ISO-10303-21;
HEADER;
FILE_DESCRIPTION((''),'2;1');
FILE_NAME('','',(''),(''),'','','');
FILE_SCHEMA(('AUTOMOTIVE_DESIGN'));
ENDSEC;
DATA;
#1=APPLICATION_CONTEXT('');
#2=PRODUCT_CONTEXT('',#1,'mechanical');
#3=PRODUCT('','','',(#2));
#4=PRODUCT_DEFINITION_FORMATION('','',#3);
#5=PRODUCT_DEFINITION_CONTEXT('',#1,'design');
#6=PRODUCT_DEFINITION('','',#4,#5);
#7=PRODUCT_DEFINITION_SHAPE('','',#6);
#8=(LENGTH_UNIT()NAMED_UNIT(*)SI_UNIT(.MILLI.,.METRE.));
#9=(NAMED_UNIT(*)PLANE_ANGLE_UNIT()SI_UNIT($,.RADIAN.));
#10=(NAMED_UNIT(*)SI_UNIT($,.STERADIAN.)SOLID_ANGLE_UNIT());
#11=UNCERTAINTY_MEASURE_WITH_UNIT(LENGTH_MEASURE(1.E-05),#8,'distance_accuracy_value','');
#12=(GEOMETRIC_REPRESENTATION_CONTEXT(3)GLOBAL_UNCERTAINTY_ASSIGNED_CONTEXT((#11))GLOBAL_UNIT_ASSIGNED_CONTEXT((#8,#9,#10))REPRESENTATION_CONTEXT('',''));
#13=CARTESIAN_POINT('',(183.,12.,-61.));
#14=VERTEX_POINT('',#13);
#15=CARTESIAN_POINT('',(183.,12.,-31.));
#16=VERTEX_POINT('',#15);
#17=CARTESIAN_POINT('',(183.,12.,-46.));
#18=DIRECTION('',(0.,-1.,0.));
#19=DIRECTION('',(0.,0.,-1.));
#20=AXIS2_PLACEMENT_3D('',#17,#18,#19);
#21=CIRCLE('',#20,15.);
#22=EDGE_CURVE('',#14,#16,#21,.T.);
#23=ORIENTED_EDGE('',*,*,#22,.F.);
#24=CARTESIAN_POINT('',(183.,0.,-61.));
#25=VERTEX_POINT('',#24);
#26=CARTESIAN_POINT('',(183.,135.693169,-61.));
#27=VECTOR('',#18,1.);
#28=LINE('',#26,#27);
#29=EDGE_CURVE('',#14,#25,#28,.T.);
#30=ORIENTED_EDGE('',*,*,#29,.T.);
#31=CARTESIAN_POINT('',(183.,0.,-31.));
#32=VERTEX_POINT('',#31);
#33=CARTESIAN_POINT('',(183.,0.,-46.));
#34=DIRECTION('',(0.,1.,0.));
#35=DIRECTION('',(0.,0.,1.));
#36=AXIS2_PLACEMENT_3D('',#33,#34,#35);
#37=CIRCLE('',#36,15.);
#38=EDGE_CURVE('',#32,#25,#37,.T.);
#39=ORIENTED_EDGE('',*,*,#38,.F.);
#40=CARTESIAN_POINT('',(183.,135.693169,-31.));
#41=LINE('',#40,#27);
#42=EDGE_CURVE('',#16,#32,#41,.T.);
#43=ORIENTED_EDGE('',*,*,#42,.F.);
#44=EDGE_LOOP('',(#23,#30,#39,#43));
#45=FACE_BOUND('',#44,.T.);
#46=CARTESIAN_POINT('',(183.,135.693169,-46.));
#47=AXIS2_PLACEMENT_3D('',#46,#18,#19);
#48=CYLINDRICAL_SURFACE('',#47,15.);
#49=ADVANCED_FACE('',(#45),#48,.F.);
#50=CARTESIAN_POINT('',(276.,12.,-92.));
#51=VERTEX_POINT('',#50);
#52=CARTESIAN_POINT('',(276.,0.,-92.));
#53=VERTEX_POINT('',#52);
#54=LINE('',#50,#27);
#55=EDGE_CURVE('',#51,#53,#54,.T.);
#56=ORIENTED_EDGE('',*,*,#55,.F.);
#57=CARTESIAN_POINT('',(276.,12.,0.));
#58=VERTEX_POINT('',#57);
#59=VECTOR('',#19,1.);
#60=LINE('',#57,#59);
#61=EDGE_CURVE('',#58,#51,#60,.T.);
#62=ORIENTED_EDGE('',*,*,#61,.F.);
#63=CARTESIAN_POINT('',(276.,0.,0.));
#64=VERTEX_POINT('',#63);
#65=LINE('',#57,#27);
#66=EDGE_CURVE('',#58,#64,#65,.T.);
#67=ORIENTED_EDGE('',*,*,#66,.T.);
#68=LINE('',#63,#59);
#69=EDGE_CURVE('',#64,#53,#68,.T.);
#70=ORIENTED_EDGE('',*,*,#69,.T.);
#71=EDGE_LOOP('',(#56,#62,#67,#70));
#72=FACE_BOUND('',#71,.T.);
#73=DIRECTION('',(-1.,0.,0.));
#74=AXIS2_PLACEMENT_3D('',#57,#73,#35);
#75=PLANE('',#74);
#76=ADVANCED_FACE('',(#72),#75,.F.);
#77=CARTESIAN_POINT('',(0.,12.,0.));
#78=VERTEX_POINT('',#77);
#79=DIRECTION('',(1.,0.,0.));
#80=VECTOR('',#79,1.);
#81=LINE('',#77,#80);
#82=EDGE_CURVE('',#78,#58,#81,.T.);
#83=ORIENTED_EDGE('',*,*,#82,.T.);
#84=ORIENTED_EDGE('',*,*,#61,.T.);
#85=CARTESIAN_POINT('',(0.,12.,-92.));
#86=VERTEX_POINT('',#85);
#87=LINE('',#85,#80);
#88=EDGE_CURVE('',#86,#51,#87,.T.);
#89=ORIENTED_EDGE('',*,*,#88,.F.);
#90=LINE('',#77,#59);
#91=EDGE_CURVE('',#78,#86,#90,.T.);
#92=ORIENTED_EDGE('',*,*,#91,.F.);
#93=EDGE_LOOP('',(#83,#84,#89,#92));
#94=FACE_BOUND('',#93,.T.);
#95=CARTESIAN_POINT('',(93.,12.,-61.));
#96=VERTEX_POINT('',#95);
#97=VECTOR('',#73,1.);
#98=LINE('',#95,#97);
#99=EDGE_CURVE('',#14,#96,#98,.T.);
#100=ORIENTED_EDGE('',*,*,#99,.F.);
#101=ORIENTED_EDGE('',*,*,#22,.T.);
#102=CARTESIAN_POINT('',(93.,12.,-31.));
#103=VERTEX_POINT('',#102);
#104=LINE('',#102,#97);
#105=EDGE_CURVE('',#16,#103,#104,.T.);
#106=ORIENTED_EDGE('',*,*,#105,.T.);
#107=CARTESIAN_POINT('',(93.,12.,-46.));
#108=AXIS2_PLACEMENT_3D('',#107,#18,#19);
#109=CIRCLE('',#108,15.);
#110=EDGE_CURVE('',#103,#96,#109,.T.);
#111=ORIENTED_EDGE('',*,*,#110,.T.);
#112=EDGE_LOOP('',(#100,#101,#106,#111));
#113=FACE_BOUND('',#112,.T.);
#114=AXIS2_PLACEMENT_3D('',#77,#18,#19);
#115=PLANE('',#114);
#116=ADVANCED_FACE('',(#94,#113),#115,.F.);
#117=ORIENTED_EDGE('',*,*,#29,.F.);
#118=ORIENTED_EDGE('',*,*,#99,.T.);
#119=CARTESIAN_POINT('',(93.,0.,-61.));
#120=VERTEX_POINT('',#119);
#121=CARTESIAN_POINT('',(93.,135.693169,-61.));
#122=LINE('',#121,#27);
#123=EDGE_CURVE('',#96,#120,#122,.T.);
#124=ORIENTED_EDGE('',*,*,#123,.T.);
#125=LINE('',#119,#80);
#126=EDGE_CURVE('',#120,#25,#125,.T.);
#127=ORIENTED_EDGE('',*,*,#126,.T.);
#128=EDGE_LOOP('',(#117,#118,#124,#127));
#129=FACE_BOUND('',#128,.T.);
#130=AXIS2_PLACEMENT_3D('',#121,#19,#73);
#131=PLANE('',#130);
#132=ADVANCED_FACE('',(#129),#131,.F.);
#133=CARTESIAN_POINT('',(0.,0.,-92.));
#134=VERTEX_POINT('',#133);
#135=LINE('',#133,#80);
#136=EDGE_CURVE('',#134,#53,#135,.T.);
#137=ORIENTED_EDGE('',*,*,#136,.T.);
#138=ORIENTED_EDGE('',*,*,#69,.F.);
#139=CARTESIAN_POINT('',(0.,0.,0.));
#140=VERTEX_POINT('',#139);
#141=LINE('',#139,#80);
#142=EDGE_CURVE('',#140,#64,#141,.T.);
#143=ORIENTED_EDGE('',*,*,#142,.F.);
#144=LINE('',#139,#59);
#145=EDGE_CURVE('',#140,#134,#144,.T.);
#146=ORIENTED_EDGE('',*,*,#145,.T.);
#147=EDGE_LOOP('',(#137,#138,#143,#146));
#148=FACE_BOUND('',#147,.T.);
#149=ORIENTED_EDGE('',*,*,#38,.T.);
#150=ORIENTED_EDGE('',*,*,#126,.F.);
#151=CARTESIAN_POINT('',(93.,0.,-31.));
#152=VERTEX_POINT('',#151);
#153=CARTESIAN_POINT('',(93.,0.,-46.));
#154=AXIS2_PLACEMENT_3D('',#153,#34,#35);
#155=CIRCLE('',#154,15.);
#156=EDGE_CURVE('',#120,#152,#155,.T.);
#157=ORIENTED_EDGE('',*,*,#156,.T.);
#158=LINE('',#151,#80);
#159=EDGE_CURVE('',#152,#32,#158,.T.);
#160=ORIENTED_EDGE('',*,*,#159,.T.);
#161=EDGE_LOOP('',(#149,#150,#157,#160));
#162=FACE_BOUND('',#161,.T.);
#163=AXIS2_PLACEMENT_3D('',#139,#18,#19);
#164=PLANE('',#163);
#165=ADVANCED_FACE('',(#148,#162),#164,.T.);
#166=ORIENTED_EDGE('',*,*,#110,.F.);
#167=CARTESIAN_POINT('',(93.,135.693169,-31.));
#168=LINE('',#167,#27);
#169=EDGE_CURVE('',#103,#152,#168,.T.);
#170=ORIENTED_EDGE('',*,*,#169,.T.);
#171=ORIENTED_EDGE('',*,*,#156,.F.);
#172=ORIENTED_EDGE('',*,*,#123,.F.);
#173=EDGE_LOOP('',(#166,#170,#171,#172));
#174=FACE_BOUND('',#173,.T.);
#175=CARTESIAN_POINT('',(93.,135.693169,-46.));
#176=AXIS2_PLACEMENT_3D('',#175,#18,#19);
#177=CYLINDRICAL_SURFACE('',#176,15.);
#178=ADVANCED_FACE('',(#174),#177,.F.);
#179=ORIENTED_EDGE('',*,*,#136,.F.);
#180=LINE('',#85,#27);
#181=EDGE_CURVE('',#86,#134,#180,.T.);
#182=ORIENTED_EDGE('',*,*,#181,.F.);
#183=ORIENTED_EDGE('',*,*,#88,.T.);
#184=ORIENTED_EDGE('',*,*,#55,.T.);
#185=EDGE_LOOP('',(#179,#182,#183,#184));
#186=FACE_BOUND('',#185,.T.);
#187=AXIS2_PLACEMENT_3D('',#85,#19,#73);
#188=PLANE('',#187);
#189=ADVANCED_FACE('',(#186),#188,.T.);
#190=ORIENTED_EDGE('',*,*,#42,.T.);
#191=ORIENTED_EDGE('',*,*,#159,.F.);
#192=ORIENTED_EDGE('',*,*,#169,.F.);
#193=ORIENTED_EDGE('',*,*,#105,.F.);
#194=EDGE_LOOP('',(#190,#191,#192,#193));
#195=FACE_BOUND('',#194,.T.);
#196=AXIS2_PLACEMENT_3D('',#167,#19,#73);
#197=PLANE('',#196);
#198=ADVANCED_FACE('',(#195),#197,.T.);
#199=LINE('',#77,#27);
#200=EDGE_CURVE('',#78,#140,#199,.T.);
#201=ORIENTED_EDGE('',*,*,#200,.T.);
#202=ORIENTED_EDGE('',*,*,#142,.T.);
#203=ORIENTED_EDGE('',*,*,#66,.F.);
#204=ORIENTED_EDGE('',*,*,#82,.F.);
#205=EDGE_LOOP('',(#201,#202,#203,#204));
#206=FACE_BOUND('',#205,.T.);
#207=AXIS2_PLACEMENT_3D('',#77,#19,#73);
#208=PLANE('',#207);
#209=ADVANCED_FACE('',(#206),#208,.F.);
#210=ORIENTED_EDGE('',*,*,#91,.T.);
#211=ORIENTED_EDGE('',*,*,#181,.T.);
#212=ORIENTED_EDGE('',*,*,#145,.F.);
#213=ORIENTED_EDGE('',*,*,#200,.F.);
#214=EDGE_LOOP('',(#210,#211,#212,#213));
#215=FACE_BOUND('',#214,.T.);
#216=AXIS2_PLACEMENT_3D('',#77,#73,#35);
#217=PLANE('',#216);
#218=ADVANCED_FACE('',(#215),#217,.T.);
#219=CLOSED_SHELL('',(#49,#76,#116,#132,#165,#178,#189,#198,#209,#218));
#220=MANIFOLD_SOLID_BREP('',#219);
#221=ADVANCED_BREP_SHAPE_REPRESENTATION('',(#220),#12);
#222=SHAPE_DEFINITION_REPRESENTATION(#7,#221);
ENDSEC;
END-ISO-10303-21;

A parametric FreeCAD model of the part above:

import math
import FreeCAD as App
import Part
import Sketcher
Q = App.Units.Quantity


def add_polygon(sketch, points):
    """Adds a closed chain of lines whose ends are joined by coincident constraints."""
    first, n = sketch.GeometryCount, len(points)
    for a, b in zip(points, points[1:] + points[:1]):
        sketch.addGeometry(Part.LineSegment(App.Vector(*a, 0), App.Vector(*b, 0)), False)
    for i in range(n):
        sketch.addConstraint(Sketcher.Constraint("Coincident", first + i, 2, first + (i + 1) % n, 1))

doc = App.newDocument("Part")
body = doc.addObject("PartDesign::Body", "Body")

sketch1 = body.newObject("Sketcher::SketchObject", "Sketch")
sketch1.AttachmentSupport = (doc.getObject("XZ_Plane"), [""])
sketch1.MapMode = "FlatFace"
add_polygon(sketch1, [(0, -92), (0, 0), (276, 0), (276, -92)])
sketch1.addConstraint(Sketcher.Constraint("Vertical", 0))
sketch1.addConstraint(Sketcher.Constraint("Horizontal", 1))
sketch1.addConstraint(Sketcher.Constraint("Vertical", 2))
sketch1.addConstraint(Sketcher.Constraint("Horizontal", 3))
sketch1.addConstraint(Sketcher.Constraint("Coincident", 0, 2, -1, 1))
sketch1.addConstraint(Sketcher.Constraint("DistanceX", 1, 1, 1, 2, Q("276 mm")))
sketch1.addConstraint(Sketcher.Constraint("DistanceY", 0, 1, 0, 2, Q("92 mm")))
pad1 = body.newObject("PartDesign::Pad", "Pad")
pad1.Profile = sketch1
pad1.Length = 12
pad1.Reversed = True

sketch2 = body.newObject("Sketcher::SketchObject", "Sketch001")
sketch2.AttachmentSupport = (doc.getObject("XZ_Plane"), [""])
sketch2.MapMode = "FlatFace"
sketch2.addGeometry(Part.LineSegment(App.Vector(183, -61, 0), App.Vector(93, -61, 0)), False)
sketch2.addGeometry(Part.ArcOfCircle(Part.Circle(App.Vector(93, -46, 0), App.Vector(0, 0, 1), 15), math.radians(90), math.radians(270)), False)
sketch2.addGeometry(Part.LineSegment(App.Vector(93, -31, 0), App.Vector(183, -31, 0)), False)
sketch2.addGeometry(Part.ArcOfCircle(Part.Circle(App.Vector(183, -46, 0), App.Vector(0, 0, 1), 15), math.radians(-90), math.radians(90)), False)
sketch2.addConstraint(Sketcher.Constraint("Tangent", 0, 2, 1, 2))
sketch2.addConstraint(Sketcher.Constraint("Tangent", 1, 1, 2, 1))
sketch2.addConstraint(Sketcher.Constraint("Tangent", 2, 2, 3, 2))
sketch2.addConstraint(Sketcher.Constraint("Tangent", 3, 1, 0, 1))
sketch2.addConstraint(Sketcher.Constraint("Horizontal", 0))
sketch2.addConstraint(Sketcher.Constraint("Horizontal", 2))
sketch2.addConstraint(Sketcher.Constraint("Radius", 1, Q("15 mm")))
sketch2.addConstraint(Sketcher.Constraint("DistanceX", 0, 2, 0, 1, Q("90 mm")))
sketch2.addConstraint(Sketcher.Constraint("DistanceX", -1, 1, 1, 3, Q("93 mm")))
sketch2.addConstraint(Sketcher.Constraint("DistanceY", 1, 3, -1, 1, Q("46 mm")))
pocket1 = body.newObject("PartDesign::Pocket", "Pocket")
pocket1.Profile = sketch2
pocket1.Length = 12

doc.recompute()
